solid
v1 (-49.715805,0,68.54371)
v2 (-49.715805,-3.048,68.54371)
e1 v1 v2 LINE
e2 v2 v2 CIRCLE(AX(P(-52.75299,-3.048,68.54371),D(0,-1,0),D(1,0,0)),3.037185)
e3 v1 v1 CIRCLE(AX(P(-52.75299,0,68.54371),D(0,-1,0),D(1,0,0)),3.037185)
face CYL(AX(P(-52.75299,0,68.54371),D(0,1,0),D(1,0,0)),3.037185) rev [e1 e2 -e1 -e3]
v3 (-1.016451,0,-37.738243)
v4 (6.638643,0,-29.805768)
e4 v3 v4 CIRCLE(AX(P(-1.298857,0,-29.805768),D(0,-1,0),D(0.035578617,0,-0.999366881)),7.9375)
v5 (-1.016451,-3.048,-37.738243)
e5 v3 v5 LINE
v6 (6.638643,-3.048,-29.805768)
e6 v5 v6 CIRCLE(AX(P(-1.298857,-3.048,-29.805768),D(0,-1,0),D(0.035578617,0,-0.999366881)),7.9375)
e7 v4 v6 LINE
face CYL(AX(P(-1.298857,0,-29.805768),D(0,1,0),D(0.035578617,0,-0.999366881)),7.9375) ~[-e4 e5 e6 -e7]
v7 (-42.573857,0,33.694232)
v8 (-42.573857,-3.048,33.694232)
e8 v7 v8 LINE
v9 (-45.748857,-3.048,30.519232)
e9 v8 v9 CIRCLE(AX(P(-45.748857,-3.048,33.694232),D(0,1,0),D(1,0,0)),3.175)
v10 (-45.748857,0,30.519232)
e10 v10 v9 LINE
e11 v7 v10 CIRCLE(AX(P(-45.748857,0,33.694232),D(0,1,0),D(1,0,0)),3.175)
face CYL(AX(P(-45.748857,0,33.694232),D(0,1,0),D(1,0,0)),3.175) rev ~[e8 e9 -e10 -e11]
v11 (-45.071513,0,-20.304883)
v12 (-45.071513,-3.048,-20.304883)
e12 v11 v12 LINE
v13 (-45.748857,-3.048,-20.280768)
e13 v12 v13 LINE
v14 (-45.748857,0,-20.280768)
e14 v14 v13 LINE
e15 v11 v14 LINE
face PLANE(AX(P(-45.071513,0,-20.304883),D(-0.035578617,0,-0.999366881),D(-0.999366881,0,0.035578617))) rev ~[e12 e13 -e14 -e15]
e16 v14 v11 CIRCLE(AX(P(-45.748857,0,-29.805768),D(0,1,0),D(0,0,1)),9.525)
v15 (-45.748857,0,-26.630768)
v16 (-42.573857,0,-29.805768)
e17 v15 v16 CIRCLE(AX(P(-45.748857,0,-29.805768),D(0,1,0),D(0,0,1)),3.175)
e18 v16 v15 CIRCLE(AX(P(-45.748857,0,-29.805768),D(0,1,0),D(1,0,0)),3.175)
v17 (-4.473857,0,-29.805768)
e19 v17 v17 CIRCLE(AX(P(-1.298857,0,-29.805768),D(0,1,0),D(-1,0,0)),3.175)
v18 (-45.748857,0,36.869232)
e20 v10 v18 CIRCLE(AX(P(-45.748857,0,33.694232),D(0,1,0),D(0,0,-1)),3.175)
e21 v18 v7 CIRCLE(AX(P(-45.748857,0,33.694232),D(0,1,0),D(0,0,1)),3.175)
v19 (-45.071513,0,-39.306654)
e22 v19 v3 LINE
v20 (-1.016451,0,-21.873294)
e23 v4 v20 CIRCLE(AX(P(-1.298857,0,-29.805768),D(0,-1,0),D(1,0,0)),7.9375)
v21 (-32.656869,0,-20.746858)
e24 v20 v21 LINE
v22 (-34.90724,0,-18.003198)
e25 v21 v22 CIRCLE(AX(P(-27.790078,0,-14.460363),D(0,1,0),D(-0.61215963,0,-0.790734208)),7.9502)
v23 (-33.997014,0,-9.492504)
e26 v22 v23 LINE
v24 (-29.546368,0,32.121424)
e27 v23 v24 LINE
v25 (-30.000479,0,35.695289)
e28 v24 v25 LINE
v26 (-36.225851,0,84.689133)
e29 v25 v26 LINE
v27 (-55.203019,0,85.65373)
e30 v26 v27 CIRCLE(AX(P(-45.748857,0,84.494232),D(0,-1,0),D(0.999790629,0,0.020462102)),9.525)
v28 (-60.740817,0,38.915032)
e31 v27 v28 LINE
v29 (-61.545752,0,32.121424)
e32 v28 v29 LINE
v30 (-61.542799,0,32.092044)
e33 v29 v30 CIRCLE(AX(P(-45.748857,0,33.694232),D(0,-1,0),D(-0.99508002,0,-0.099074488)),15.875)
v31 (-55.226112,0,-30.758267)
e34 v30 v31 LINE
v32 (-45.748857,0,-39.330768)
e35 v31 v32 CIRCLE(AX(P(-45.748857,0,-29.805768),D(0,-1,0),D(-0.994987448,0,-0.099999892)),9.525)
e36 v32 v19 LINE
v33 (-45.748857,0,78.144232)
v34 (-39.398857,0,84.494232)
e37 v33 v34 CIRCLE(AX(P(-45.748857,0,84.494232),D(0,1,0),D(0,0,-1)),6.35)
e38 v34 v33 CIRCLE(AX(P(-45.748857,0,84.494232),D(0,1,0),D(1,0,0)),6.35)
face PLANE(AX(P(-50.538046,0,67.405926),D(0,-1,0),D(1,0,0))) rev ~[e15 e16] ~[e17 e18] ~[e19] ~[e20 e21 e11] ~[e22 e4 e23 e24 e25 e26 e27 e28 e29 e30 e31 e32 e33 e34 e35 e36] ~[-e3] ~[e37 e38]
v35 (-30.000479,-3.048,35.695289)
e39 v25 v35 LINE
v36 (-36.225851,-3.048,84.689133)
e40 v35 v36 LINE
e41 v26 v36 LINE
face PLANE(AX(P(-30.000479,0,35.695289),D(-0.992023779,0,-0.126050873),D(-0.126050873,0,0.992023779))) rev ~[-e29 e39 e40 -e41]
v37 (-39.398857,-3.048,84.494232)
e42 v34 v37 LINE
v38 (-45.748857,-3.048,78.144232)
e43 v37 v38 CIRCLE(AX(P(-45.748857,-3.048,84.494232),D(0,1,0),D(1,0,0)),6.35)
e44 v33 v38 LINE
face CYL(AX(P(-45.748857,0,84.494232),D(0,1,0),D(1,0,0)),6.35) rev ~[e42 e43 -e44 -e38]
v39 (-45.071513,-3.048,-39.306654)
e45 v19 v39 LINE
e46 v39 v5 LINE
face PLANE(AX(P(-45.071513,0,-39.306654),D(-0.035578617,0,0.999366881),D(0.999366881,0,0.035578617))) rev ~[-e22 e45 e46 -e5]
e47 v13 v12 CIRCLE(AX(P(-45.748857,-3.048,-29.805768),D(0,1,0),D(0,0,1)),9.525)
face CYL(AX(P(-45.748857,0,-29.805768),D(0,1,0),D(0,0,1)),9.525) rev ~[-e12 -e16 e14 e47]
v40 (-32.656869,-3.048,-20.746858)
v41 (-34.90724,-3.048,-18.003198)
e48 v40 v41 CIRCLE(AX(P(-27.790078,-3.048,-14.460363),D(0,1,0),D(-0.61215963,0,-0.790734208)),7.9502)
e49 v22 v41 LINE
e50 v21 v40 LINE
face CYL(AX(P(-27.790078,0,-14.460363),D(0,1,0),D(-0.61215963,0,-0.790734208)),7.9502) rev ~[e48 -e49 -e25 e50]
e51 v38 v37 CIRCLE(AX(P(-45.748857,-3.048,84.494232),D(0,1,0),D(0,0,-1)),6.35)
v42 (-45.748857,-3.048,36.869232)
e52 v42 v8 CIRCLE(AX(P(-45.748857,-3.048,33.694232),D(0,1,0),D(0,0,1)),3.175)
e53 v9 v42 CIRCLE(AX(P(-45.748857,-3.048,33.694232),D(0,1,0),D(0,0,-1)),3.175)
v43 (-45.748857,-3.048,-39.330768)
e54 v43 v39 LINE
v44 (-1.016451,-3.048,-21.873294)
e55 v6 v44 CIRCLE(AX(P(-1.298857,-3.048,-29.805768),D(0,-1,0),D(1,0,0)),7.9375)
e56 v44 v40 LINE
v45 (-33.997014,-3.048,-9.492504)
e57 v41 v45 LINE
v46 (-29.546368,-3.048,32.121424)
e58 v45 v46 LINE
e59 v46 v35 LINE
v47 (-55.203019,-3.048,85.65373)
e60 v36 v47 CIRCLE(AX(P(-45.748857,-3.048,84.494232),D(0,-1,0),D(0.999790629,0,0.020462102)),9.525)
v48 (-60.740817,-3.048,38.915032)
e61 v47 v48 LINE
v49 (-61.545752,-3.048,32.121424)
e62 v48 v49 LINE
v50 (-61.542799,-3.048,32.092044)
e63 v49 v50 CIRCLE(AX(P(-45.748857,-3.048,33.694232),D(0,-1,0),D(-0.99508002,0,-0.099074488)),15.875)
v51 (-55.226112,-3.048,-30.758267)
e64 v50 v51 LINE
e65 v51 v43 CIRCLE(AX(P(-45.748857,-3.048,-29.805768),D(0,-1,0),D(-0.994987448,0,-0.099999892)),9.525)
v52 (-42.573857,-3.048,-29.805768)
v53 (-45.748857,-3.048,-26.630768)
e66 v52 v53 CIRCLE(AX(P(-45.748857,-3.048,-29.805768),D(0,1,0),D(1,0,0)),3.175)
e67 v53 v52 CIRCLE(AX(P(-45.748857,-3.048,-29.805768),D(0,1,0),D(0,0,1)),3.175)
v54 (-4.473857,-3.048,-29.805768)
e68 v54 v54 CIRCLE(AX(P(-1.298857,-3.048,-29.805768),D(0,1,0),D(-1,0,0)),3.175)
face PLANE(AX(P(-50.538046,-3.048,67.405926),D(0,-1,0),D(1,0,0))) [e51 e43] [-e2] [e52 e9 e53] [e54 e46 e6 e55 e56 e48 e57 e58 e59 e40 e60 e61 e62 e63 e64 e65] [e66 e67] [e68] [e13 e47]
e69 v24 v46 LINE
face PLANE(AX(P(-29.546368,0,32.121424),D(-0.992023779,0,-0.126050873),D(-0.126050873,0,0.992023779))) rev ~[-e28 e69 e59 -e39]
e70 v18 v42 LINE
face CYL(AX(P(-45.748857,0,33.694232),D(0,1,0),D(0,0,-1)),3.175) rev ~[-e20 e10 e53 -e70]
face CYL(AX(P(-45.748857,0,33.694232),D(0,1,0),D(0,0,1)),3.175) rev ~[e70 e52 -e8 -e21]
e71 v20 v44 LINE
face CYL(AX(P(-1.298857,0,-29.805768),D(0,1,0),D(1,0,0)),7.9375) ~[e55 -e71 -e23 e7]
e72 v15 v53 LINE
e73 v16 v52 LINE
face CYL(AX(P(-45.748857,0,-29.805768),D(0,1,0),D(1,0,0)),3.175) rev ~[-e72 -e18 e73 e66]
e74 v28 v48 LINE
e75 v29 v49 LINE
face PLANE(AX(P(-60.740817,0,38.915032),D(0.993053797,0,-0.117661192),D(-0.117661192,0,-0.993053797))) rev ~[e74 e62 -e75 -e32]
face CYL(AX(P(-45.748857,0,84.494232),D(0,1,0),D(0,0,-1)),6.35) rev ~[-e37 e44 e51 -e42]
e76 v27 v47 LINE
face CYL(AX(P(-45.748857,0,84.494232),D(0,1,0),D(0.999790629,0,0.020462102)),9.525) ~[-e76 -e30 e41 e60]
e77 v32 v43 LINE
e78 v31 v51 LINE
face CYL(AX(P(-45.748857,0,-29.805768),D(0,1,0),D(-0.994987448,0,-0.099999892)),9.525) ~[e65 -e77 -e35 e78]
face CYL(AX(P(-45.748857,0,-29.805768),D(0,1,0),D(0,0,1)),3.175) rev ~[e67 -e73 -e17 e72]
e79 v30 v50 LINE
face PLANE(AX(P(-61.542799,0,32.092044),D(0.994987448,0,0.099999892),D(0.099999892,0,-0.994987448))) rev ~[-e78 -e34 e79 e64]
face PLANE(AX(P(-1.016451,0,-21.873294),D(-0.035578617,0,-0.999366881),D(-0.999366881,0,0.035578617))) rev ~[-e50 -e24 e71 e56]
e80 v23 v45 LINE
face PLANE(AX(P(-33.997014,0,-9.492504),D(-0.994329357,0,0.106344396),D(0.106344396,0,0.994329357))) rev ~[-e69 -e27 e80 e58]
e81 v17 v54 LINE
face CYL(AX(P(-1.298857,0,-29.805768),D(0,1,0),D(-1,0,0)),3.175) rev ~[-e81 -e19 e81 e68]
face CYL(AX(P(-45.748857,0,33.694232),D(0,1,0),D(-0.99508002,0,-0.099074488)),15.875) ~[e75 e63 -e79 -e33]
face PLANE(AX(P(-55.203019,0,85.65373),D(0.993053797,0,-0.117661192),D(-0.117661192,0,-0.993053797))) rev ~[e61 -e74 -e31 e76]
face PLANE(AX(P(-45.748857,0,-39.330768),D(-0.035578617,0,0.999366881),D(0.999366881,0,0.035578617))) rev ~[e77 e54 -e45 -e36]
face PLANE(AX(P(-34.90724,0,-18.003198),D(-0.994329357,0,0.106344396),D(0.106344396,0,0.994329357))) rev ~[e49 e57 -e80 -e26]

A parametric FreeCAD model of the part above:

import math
import FreeCAD as App
import Part
import Sketcher
Q = App.Units.Quantity

doc = App.newDocument("Part")
body = doc.addObject("PartDesign::Body", "Body")

# Sketch on XZ plane
sketch1 = body.newObject("Sketcher::SketchObject", "Sketch")
sketch1.AttachmentSupport = (doc.getObject("XZ_Plane"), [""])
sketch1.MapMode = "FlatFace"
sketch1.addGeometry([
    Part.LineSegment(App.Vector(-61.543, 32.092, 0), App.Vector(-55.226, -30.758, 0)),  # 0
    Part.ArcOfCircle(Part.Circle(App.Vector(-45.749, -29.806, 0), App.Vector(0, 0, 1), 9.525), math.radians(-174), math.radians(-90)),  # 1
    Part.LineSegment(App.Vector(-45.749, -39.331, 0), App.Vector(-45.072, -39.307, 0)),  # 2
    Part.LineSegment(App.Vector(-45.072, -39.307, 0), App.Vector(-1.016, -37.738, 0)),  # 3
    Part.ArcOfCircle(Part.Circle(App.Vector(-1.299, -29.806, 0), App.Vector(0, 0, 1), 7.938), math.radians(-88), math.radians(0)),  # 4
    Part.ArcOfCircle(Part.Circle(App.Vector(-1.299, -29.806, 0), App.Vector(0, 0, 1), 7.938), math.radians(0), math.radians(88)),  # 5
    Part.LineSegment(App.Vector(-1.016, -21.873, 0), App.Vector(-32.657, -20.747, 0)),  # 6
    Part.ArcOfCircle(Part.Circle(App.Vector(-27.79, -14.46, 0), App.Vector(0, 0, 1), 7.95), math.radians(-154), math.radians(-128)),  # 7
    Part.LineSegment(App.Vector(-34.907, -18.003, 0), App.Vector(-33.997, -9.493, 0)),  # 8
    Part.LineSegment(App.Vector(-33.997, -9.493, 0), App.Vector(-29.546, 32.121, 0)),  # 9
    Part.LineSegment(App.Vector(-29.546, 32.121, 0), App.Vector(-30, 35.695, 0)),  # 10
    Part.LineSegment(App.Vector(-30, 35.695, 0), App.Vector(-36.226, 84.689, 0)),  # 11
    Part.ArcOfCircle(Part.Circle(App.Vector(-45.749, 84.494, 0), App.Vector(0, 0, 1), 9.525), math.radians(1), math.radians(173)),  # 12
    Part.LineSegment(App.Vector(-55.203, 85.654, 0), App.Vector(-60.741, 38.915, 0)),  # 13
    Part.LineSegment(App.Vector(-60.741, 38.915, 0), App.Vector(-61.546, 32.121, 0)),  # 14
    Part.ArcOfCircle(Part.Circle(App.Vector(-45.749, 33.694, 0), App.Vector(0, 0, 1), 15.875), math.radians(-174.31), math.radians(-174.21)),  # 15
    Part.ArcOfCircle(Part.Circle(App.Vector(-45.749, -29.806, 0), App.Vector(0, 0, 1), 3.175), math.radians(0), math.radians(90)),  # 16
    Part.ArcOfCircle(Part.Circle(App.Vector(-45.749, -29.806, 0), App.Vector(0, 0, 1), 3.175), math.radians(90), math.radians(360)),  # 17
    Part.LineSegment(App.Vector(-45.072, -20.305, 0), App.Vector(-45.749, -20.281, 0)),  # 18
    Part.ArcOfCircle(Part.Circle(App.Vector(-45.749, -29.806, 0), App.Vector(0, 0, 1), 9.525), math.radians(85.92), math.radians(90)),  # 19
    Part.Circle(App.Vector(-1.299, -29.806, 0), App.Vector(0, 0, 1), 3.175),  # 20
    Part.ArcOfCircle(Part.Circle(App.Vector(-45.749, 33.694, 0), App.Vector(0, 0, 1), 3.175), math.radians(90), math.radians(270)),  # 21
    Part.ArcOfCircle(Part.Circle(App.Vector(-45.749, 33.694, 0), App.Vector(0, 0, 1), 3.175), math.radians(0), math.radians(90)),  # 22
    Part.ArcOfCircle(Part.Circle(App.Vector(-45.749, 33.694, 0), App.Vector(0, 0, 1), 3.175), math.radians(-90), math.radians(0)),  # 23
    Part.Circle(App.Vector(-52.753, 68.544, 0), App.Vector(0, 0, 1), 3.037),  # 24
    Part.ArcOfCircle(Part.Circle(App.Vector(-45.749, 84.494, 0), App.Vector(0, 0, 1), 6.35), math.radians(0), math.radians(270)),  # 25
    Part.ArcOfCircle(Part.Circle(App.Vector(-45.749, 84.494, 0), App.Vector(0, 0, 1), 6.35), math.radians(-90), math.radians(0)),  # 26
], False)
sketch1.addConstraint([
    Sketcher.Constraint("Tangent", 0, 2, 1, 1),
    Sketcher.Constraint("Coincident", 1, 2, 2, 1),
    Sketcher.Constraint("Coincident", 2, 2, 3, 1),
    Sketcher.Constraint("Tangent", 3, 2, 4, 1),
    Sketcher.Constraint("Tangent", 4, 2, 5, 1),
    Sketcher.Constraint("Tangent", 5, 2, 6, 1),
    Sketcher.Constraint("Coincident", 6, 2, 7, 2),
    Sketcher.Constraint("Coincident", 7, 1, 8, 1),
    Sketcher.Constraint("Coincident", 8, 2, 9, 1),
    Sketcher.Constraint("Coincident", 9, 2, 10, 1),
    Sketcher.Constraint("Coincident", 10, 2, 11, 1),
    Sketcher.Constraint("Coincident", 11, 2, 12, 1),
    Sketcher.Constraint("Coincident", 12, 2, 13, 1),
    Sketcher.Constraint("Coincident", 13, 2, 14, 1),
    Sketcher.Constraint("Coincident", 14, 2, 15, 1),
    Sketcher.Constraint("Coincident", 15, 2, 0, 1),
    Sketcher.Constraint("Tangent", 16, 1, 17, 2),
    Sketcher.Constraint("Coincident", 17, 1, 16, 2),
    Sketcher.Constraint("Coincident", 18, 1, 19, 1),
    Sketcher.Constraint("Coincident", 19, 2, 18, 2),
    Sketcher.Constraint("Tangent", 21, 1, 22, 2),
    Sketcher.Constraint("Tangent", 22, 1, 23, 2),
    Sketcher.Constraint("Tangent", 23, 1, 21, 2),
    Sketcher.Constraint("Tangent", 25, 1, 26, 2),
    Sketcher.Constraint("Coincident", 26, 1, 25, 2),
    Sketcher.Constraint("Coincident", 16, 3, 1, 3),
    Sketcher.Constraint("Coincident", 19, 3, 1, 3),
    Sketcher.Constraint("Coincident", 20, 3, 4, 3),
    Sketcher.Constraint("Coincident", 21, 3, 15, 3),
    Sketcher.Constraint("Coincident", 25, 3, 12, 3),
    Sketcher.Constraint("Equal", 4, 5),
    Sketcher.Constraint("Equal", 1, 12),
    Sketcher.Constraint("Equal", 12, 19),
    Sketcher.Constraint("Equal", 17, 20),
    Sketcher.Constraint("Equal", 20, 21),
    Sketcher.Constraint("Parallel", 2, 3),
    Sketcher.Constraint("Parallel", 8, 9),
    Sketcher.Constraint("Parallel", 10, 11),
    Sketcher.Constraint("Parallel", 13, 14),
    Sketcher.Constraint("Parallel", 6, 18),
    Sketcher.Constraint("Horizontal", 1, 3, 4, 3),
    Sketcher.Constraint("Horizontal", 20, 3, 4, 2),
    Sketcher.Constraint("Horizontal", 9, 2, 14, 2),
    Sketcher.Constraint("Horizontal", 4, 2, 16, 1),
    Sketcher.Constraint("Horizontal", 23, 3, 22, 1),
    Sketcher.Constraint("Horizontal", 26, 3, 25, 1),
    Sketcher.Constraint("Vertical", 1, 3, 12, 3),
    Sketcher.Constraint("Vertical", 12, 3, 15, 3),
    Sketcher.Constraint("Vertical", 26, 3, 1, 2),
    Sketcher.Constraint("Vertical", 3, 2, 5, 2),
    Sketcher.Constraint("Vertical", 1, 2, 17, 1),
    Sketcher.Constraint("Vertical", 2, 2, 18, 1),
    Sketcher.Constraint("Vertical", 17, 1, 19, 2),
    Sketcher.Constraint("Vertical", 19, 2, 21, 1),
    Sketcher.Constraint("Vertical", 21, 1, 23, 1),
    Sketcher.Constraint("Vertical", 23, 1, 26, 1),
    Sketcher.Constraint("Diameter", 20, Q("0.25 in")),
    Sketcher.Constraint("Radius", 25, Q("0.25 in")),
    Sketcher.Constraint("Radius", 1, Q("0.375 in")),
    Sketcher.Constraint("Radius", 4, Q("0.3125 in")),
    Sketcher.Constraint("Radius", 7, Q("0.313 in")),
    Sketcher.Constraint("Radius", 15, Q("0.625 in")),
    Sketcher.Constraint("DistanceY", 15, 3, 12, 3, Q("2 in")),
    Sketcher.Constraint("DistanceY", 1, 3, 12, 3, Q("4.5 in")),
    Sketcher.Constraint("DistanceX", 1, 3, 4, 3, Q("1.75 in")),
    Sketcher.Constraint("Diameter", 24, Q("6.07437 mm")),
    Sketcher.Constraint("DistanceY", 6, 2, 7, 3, Q("0.2474998 in")),
    Sketcher.Constraint("Distance", 10, Q("3.6026 mm")),
    Sketcher.Constraint("DistanceX", 15, 2, -1, 1, Q("61.542799 mm")),
    Sketcher.Constraint("DistanceY", 12, 3, 11, 2, Q("0.194902 mm")),
    Sketcher.Constraint("DistanceY", 15, 3, 13, 2, Q("5.220801 mm")),
    Sketcher.Constraint("Distance", 0, Q("63.166939 mm")),
    Sketcher.Constraint("Distance", 8, Q("8.55923 mm")),
    Sketcher.Constraint("Distance", 11, Q("49.387772 mm")),
    Sketcher.Constraint("DistanceY", 1, 3, -1, 1, Q("29.805768 mm")),
    Sketcher.Constraint("DistanceX", 24, 3, -1, 1, Q("52.75299 mm")),
    Sketcher.Constraint("DistanceY", -1, 1, 24, 3, Q("68.54371 mm")),
    Sketcher.Constraint("DistanceX", 6, 2, -1, 1, Q("32.656869 mm")),
    Sketcher.Constraint("DistanceX", 7, 1, -1, 1, Q("34.90724 mm")),
    Sketcher.Constraint("DistanceX", 9, 2, -1, 1, Q("29.546368 mm")),
    Sketcher.Constraint("DistanceX", 12, 2, -1, 1, Q("55.203019 mm")),
])
pad1 = body.newObject("PartDesign::Pad", "Pad")
pad1.Profile = sketch1
pad1.Length = Q("0.12 in")

doc.recompute()
